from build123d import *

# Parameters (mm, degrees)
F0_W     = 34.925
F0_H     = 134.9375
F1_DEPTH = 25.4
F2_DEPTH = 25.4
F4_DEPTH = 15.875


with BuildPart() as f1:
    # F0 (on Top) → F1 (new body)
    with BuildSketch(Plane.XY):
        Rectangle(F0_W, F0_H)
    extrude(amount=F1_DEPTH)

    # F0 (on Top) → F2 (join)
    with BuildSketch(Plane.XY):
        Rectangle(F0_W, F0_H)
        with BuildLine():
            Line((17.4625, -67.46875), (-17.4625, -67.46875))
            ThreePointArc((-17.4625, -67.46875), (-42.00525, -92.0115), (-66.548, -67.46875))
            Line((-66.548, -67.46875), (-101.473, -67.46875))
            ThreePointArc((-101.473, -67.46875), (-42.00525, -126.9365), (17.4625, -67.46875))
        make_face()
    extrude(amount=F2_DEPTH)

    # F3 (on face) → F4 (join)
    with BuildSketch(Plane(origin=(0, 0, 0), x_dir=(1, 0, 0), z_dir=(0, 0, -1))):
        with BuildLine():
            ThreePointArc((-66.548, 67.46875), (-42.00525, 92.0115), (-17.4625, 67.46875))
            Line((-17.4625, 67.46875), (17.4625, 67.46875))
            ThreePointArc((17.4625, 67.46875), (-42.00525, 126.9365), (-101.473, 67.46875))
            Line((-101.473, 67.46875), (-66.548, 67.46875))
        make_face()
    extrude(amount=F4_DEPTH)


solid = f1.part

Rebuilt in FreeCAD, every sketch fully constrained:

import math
import FreeCAD as App
import Part
import Sketcher

V = App.Vector
Q = App.Units.Quantity

doc = App.newDocument("Part")
body = doc.addObject("PartDesign::Body", "Body")

# Sketch on XY plane
sketch1 = body.newObject("Sketcher::SketchObject", "Sketch")
sketch1.AttachmentSupport = (doc.getObject("XY_Plane"), [""])
sketch1.MapMode = "FlatFace"
sketch1.addGeometry(Part.LineSegment(V(-17.4625, 67.46875, 0), V(-17.4625, -67.46875, 0)), False)
sketch1.addGeometry(Part.LineSegment(V(-17.4625, -67.46875, 0), V(17.4625, -67.46875, 0)), False)
sketch1.addGeometry(Part.LineSegment(V(17.4625, -67.46875, 0), V(17.4625, 67.46875, 0)), False)
sketch1.addGeometry(Part.LineSegment(V(17.4625, 67.46875, 0), V(-17.4625, 67.46875, 0)), False)
sketch1.addConstraint(Sketcher.Constraint("Coincident", 0, 2, 1, 1))
sketch1.addConstraint(Sketcher.Constraint("Coincident", 1, 2, 2, 1))
sketch1.addConstraint(Sketcher.Constraint("Coincident", 2, 2, 3, 1))
sketch1.addConstraint(Sketcher.Constraint("Coincident", 3, 2, 0, 1))
sketch1.addConstraint(Sketcher.Constraint("Vertical", 0))
sketch1.addConstraint(Sketcher.Constraint("Horizontal", 1))
sketch1.addConstraint(Sketcher.Constraint("Vertical", 2))
sketch1.addConstraint(Sketcher.Constraint("Horizontal", 3))
sketch1.addConstraint(Sketcher.Constraint("Symmetric", 0, 2, 2, 2, -1, 1))
sketch1.addConstraint(Sketcher.Constraint("DistanceX", 1, 1, 1, 2, Q("1.375 in")))
sketch1.addConstraint(Sketcher.Constraint("DistanceY", 0, 2, 0, 1, Q("5.3125 in")))
pad1 = body.newObject("PartDesign::Pad", "Pad")
pad1.Profile = sketch1
pad1.Length = Q("1 in")

# Sketch on XY plane
sketch2 = body.newObject("Sketcher::SketchObject", "Sketch001")
sketch2.AttachmentSupport = (doc.getObject("XY_Plane"), [""])
sketch2.MapMode = "FlatFace"
sketch2.addGeometry(Part.LineSegment(V(-17.4625, 67.46875, 0), V(-17.4625, -67.46875, 0)), False)
sketch2.addGeometry(Part.ArcOfCircle(Part.Circle(V(-42.00525, -67.46875, 0), V(0, 0, 1), 24.54275), math.radians(180), math.radians(360)), False)
sketch2.addGeometry(Part.LineSegment(V(-66.548, -67.46875, 0), V(-101.473, -67.46875, 0)), False)
sketch2.addGeometry(Part.ArcOfCircle(Part.Circle(V(-42.00525, -67.46875, 0), V(0, 0, 1), 59.46775), math.radians(180), math.radians(360)), False)
sketch2.addGeometry(Part.LineSegment(V(17.4625, -67.46875, 0), V(17.4625, 67.46875, 0)), False)
sketch2.addGeometry(Part.LineSegment(V(17.4625, 67.46875, 0), V(-17.4625, 67.46875, 0)), False)
sketch2.addConstraint(Sketcher.Constraint("Tangent", 0, 2, 1, 2))
sketch2.addConstraint(Sketcher.Constraint("Coincident", 1, 1, 2, 1))
sketch2.addConstraint(Sketcher.Constraint("Coincident", 2, 2, 3, 1))
sketch2.addConstraint(Sketcher.Constraint("Tangent", 3, 2, 4, 1))
sketch2.addConstraint(Sketcher.Constraint("Coincident", 4, 2, 5, 1))
sketch2.addConstraint(Sketcher.Constraint("Coincident", 5, 2, 0, 1))
sketch2.addConstraint(Sketcher.Constraint("Vertical", 0))
sketch2.addConstraint(Sketcher.Constraint("Horizontal", 2))
sketch2.addConstraint(Sketcher.Constraint("Vertical", 4))
sketch2.addConstraint(Sketcher.Constraint("Horizontal", 5))
sketch2.addConstraint(Sketcher.Constraint("Coincident", 3, 3, 1, 3))
sketch2.addConstraint(Sketcher.Constraint("Symmetric", 0, 2, 4, 2, -1, 1))
sketch2.addConstraint(Sketcher.Constraint("Horizontal", 0, 2, 1, 1))
sketch2.addConstraint(Sketcher.Constraint("DistanceX", 2, 2, 2, 1, Q("1.375 in")))
sketch2.addConstraint(Sketcher.Constraint("DistanceY", 0, 2, 0, 1, Q("5.3125 in")))
sketch2.addConstraint(Sketcher.Constraint("DistanceX", 1, 1, -1, 1, Q("2.62 in")))
pad2 = body.newObject("PartDesign::Pad", "Pad001")
pad2.Profile = sketch2
pad2.Length = Q("1 in")

# Sketch on XY plane
sketch3 = body.newObject("Sketcher::SketchObject", "Sketch002")
sketch3.AttachmentSupport = (doc.getObject("XY_Plane"), [""])
sketch3.MapMode = "FlatFace"
sketch3.addGeometry(Part.ArcOfCircle(Part.Circle(V(-42.00525, -67.46875, 0), V(0, 0, 1), 24.54275), math.radians(180), math.radians(360)), False)
sketch3.addGeometry(Part.LineSegment(V(-17.4625, -67.46875, 0), V(17.4625, -67.46875, 0)), False)
sketch3.addGeometry(Part.ArcOfCircle(Part.Circle(V(-42.00525, -67.46875, 0), V(0, 0, 1), 59.46775), math.radians(180), math.radians(360)), False)
sketch3.addGeometry(Part.LineSegment(V(-101.473, -67.46875, 0), V(-66.548, -67.46875, 0)), False)
sketch3.addConstraint(Sketcher.Constraint("Coincident", 0, 2, 1, 1))
sketch3.addConstraint(Sketcher.Constraint("Coincident", 1, 2, 2, 2))
sketch3.addConstraint(Sketcher.Constraint("Coincident", 2, 1, 3, 1))
sketch3.addConstraint(Sketcher.Constraint("Coincident", 3, 2, 0, 1))
sketch3.addConstraint(Sketcher.Constraint("Horizontal", 1))
sketch3.addConstraint(Sketcher.Constraint("Horizontal", 3))
sketch3.addConstraint(Sketcher.Constraint("Coincident", 2, 3, 0, 3))
sketch3.addConstraint(Sketcher.Constraint("Horizontal", 2, 3, 0, 2))
sketch3.addConstraint(Sketcher.Constraint("Horizontal", 1, 2, 2, 1))
sketch3.addConstraint(Sketcher.Constraint("DistanceX", 1, 1, 1, 2, Q("1.375 in")))
sketch3.addConstraint(Sketcher.Constraint("DistanceX", 3, 2, -1, 1, Q("2.62 in")))
sketch3.addConstraint(Sketcher.Constraint("DistanceY", 0, 3, -1, 1, Q("2.65625 in")))
sketch3.addConstraint(Sketcher.Constraint("DistanceX", 0, 2, -1, 1, Q("0.6875 in")))
pad3 = body.newObject("PartDesign::Pad", "Pad002")
pad3.Profile = sketch3
pad3.Length = Q("0.625 in")
pad3.Reversed = True

doc.recompute()
